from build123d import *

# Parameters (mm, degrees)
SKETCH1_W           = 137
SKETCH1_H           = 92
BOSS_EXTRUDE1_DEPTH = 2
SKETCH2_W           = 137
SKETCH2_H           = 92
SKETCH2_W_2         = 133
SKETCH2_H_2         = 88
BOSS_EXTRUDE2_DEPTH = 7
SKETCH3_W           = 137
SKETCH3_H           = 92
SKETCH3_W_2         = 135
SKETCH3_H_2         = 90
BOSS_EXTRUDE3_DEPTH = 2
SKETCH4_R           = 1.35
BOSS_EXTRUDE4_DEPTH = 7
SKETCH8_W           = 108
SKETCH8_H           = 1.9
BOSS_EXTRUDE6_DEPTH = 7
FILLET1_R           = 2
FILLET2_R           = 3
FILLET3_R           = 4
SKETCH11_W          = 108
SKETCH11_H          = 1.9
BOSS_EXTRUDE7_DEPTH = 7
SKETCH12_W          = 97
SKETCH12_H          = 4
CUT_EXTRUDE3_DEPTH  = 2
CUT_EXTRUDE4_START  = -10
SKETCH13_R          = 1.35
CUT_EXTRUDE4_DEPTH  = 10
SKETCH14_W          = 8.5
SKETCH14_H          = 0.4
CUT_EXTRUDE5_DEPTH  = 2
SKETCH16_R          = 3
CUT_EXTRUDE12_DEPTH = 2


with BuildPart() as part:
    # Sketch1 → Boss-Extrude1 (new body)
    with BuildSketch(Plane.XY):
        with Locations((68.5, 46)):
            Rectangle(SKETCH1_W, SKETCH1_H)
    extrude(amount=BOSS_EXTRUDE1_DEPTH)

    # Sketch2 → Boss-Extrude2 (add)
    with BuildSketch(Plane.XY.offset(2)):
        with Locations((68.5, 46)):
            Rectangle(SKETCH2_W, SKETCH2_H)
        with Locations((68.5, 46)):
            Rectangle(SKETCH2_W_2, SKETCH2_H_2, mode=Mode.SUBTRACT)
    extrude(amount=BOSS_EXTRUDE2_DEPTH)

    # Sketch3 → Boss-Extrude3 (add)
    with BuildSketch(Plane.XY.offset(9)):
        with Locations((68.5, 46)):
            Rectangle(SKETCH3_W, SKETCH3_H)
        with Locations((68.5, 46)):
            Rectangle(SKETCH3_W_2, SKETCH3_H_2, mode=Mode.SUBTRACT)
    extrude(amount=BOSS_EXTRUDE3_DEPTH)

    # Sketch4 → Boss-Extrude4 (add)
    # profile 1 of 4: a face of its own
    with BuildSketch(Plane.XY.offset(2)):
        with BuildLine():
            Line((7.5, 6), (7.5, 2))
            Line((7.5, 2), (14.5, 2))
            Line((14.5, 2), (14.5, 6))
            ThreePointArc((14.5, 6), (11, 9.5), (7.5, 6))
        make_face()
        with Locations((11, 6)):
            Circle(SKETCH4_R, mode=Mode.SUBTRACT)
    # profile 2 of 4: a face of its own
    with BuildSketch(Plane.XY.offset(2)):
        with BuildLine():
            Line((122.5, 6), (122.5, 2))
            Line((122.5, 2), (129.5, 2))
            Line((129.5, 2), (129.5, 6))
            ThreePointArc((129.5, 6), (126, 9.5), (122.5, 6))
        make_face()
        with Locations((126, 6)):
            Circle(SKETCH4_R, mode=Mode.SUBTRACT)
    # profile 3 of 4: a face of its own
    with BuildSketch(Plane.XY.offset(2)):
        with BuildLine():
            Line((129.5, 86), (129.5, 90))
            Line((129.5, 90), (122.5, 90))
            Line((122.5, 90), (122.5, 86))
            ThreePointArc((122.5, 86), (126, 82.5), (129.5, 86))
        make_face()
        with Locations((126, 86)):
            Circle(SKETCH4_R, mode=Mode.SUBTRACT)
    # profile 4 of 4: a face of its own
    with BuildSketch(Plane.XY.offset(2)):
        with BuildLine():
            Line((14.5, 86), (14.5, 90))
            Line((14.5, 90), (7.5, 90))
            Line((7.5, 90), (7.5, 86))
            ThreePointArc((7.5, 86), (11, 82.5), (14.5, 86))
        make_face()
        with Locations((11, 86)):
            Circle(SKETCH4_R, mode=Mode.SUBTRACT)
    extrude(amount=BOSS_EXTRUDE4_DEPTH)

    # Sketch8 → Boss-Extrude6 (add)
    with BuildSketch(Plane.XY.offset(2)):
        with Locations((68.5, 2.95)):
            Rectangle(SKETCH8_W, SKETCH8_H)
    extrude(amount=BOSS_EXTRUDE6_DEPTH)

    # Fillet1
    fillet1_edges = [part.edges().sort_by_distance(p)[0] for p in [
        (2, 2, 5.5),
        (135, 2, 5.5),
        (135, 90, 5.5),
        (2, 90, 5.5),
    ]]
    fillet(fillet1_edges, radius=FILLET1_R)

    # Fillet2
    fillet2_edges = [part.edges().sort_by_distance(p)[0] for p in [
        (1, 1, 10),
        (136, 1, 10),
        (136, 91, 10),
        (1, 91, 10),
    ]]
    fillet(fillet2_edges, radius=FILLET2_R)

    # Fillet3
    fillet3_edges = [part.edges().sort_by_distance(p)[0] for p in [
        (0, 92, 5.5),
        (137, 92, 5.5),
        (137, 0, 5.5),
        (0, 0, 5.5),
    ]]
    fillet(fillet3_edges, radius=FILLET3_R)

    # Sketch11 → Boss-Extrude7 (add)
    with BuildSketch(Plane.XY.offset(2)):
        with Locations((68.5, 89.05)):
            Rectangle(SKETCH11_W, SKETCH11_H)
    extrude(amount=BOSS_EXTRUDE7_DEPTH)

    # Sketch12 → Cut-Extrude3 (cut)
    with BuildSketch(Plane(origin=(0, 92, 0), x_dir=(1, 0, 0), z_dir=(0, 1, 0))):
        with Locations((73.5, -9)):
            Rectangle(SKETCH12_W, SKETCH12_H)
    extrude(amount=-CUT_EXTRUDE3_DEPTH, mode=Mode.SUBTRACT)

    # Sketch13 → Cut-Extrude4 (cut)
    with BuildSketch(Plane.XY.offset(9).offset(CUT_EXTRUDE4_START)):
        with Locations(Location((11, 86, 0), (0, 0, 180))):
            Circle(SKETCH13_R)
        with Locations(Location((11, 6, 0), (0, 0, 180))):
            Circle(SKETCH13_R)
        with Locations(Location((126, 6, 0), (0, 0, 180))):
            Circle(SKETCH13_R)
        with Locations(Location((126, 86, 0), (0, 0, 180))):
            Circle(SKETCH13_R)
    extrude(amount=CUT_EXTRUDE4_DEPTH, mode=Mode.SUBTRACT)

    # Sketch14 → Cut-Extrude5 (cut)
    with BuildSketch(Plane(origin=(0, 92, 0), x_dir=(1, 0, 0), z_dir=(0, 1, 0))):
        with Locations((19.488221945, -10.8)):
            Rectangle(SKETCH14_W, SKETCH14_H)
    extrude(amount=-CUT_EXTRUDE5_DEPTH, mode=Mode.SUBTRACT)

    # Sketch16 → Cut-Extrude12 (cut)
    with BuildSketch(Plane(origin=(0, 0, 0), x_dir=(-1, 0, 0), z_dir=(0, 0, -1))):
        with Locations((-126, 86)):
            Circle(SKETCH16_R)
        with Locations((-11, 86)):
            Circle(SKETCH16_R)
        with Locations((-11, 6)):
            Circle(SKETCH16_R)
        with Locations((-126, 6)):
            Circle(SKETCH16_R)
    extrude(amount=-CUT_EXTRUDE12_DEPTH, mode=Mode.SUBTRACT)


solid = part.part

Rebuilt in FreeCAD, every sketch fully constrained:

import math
import FreeCAD as App
import Part
import Sketcher

V = App.Vector
Q = App.Units.Quantity


def edges_at(feature, points):
    """Names of the edges that pass closest to the given points."""
    edges = feature.Shape.Edges
    near = lambda p: min(range(len(edges)), key=lambda i: edges[i].distToShape(Part.Vertex(*p))[0])
    return sorted({f"Edge{near(p) + 1}" for p in points})

doc = App.newDocument("Part")
body = doc.addObject("PartDesign::Body", "Body")

# Sketch on XY plane
sketch1 = body.newObject("Sketcher::SketchObject", "Sketch")
sketch1.AttachmentSupport = (doc.getObject("XY_Plane"), [""])
sketch1.MapMode = "FlatFace"
sketch1.addGeometry([
    Part.LineSegment(V(0, 92, 0), V(0, 0, 0)),
    Part.LineSegment(V(0, 0, 0), V(137, 0, 0)),
    Part.LineSegment(V(137, 0, 0), V(137, 92, 0)),
    Part.LineSegment(V(137, 92, 0), V(0, 92, 0)),
], False)
sketch1.addConstraint([
    Sketcher.Constraint("Coincident", 0, 2, 1, 1),
    Sketcher.Constraint("Coincident", 1, 2, 2, 1),
    Sketcher.Constraint("Coincident", 2, 2, 3, 1),
    Sketcher.Constraint("Coincident", 3, 2, 0, 1),
    Sketcher.Constraint("Vertical", 0),
    Sketcher.Constraint("Horizontal", 1),
    Sketcher.Constraint("Vertical", 2),
    Sketcher.Constraint("Horizontal", 3),
    Sketcher.Constraint("Coincident", 0, 2, -1, 1),
    Sketcher.Constraint("DistanceX", 1, 1, 1, 2, Q("137 mm")),
    Sketcher.Constraint("DistanceY", 0, 2, 0, 1, Q("92 mm")),
])
pad1 = body.newObject("PartDesign::Pad", "Pad")
pad1.Profile = sketch1
pad1.Length = 2

# Sketch on XY plane
sketch2 = body.newObject("Sketcher::SketchObject", "Sketch001")
sketch2.AttachmentSupport = (doc.getObject("XY_Plane"), [""])
sketch2.MapMode = "FlatFace"
sketch2.AttachmentOffset = App.Placement(V(0, 0, 2), App.Rotation())
sketch2.addGeometry([
    Part.LineSegment(V(0, 92, 0), V(0, 0, 0)),  # 0
    Part.LineSegment(V(0, 0, 0), V(137, 0, 0)),  # 1
    Part.LineSegment(V(137, 0, 0), V(137, 92, 0)),  # 2
    Part.LineSegment(V(137, 92, 0), V(0, 92, 0)),  # 3
    Part.LineSegment(V(135, 2, 0), V(2, 2, 0)),  # 4
    Part.LineSegment(V(2, 2, 0), V(2, 90, 0)),  # 5
    Part.LineSegment(V(2, 90, 0), V(135, 90, 0)),  # 6
    Part.LineSegment(V(135, 90, 0), V(135, 2, 0)),  # 7
], False)
sketch2.addConstraint([
    Sketcher.Constraint("Coincident", 0, 2, 1, 1),
    Sketcher.Constraint("Coincident", 1, 2, 2, 1),
    Sketcher.Constraint("Coincident", 2, 2, 3, 1),
    Sketcher.Constraint("Coincident", 3, 2, 0, 1),
    Sketcher.Constraint("Coincident", 4, 2, 5, 1),
    Sketcher.Constraint("Coincident", 5, 2, 6, 1),
    Sketcher.Constraint("Coincident", 6, 2, 7, 1),
    Sketcher.Constraint("Coincident", 7, 2, 4, 1),
    Sketcher.Constraint("Vertical", 0),
    Sketcher.Constraint("Horizontal", 1),
    Sketcher.Constraint("Vertical", 2),
    Sketcher.Constraint("Horizontal", 3),
    Sketcher.Constraint("Horizontal", 4),
    Sketcher.Constraint("Vertical", 5),
    Sketcher.Constraint("Horizontal", 6),
    Sketcher.Constraint("Vertical", 7),
    Sketcher.Constraint("Coincident", 0, 2, -1, 1),
    Sketcher.Constraint("DistanceX", 1, 1, 1, 2, Q("137 mm")),
    Sketcher.Constraint("DistanceX", 4, 2, 4, 1, Q("133 mm")),
    Sketcher.Constraint("DistanceY", 0, 2, 0, 1, Q("92 mm")),
    Sketcher.Constraint("DistanceY", 5, 1, 5, 2, Q("88 mm")),
    Sketcher.Constraint("DistanceX", -1, 1, 4, 2, Q("2 mm")),
    Sketcher.Constraint("DistanceY", -1, 1, 4, 2, Q("2 mm")),
])
pad2 = body.newObject("PartDesign::Pad", "Pad001")
pad2.Profile = sketch2
pad2.Length = 7

# Sketch on XY plane
sketch3 = body.newObject("Sketcher::SketchObject", "Sketch002")
sketch3.AttachmentSupport = (doc.getObject("XY_Plane"), [""])
sketch3.MapMode = "FlatFace"
sketch3.AttachmentOffset = App.Placement(V(0, 0, 9), App.Rotation())
sketch3.addGeometry([
    Part.LineSegment(V(0, 92, 0), V(0, 0, 0)),  # 0
    Part.LineSegment(V(0, 0, 0), V(137, 0, 0)),  # 1
    Part.LineSegment(V(137, 0, 0), V(137, 92, 0)),  # 2
    Part.LineSegment(V(137, 92, 0), V(0, 92, 0)),  # 3
    Part.LineSegment(V(136, 1, 0), V(1, 1, 0)),  # 4
    Part.LineSegment(V(1, 1, 0), V(1, 91, 0)),  # 5
    Part.LineSegment(V(1, 91, 0), V(136, 91, 0)),  # 6
    Part.LineSegment(V(136, 91, 0), V(136, 1, 0)),  # 7
], False)
sketch3.addConstraint([
    Sketcher.Constraint("Coincident", 0, 2, 1, 1),
    Sketcher.Constraint("Coincident", 1, 2, 2, 1),
    Sketcher.Constraint("Coincident", 2, 2, 3, 1),
    Sketcher.Constraint("Coincident", 3, 2, 0, 1),
    Sketcher.Constraint("Coincident", 4, 2, 5, 1),
    Sketcher.Constraint("Coincident", 5, 2, 6, 1),
    Sketcher.Constraint("Coincident", 6, 2, 7, 1),
    Sketcher.Constraint("Coincident", 7, 2, 4, 1),
    Sketcher.Constraint("Vertical", 0),
    Sketcher.Constraint("Horizontal", 1),
    Sketcher.Constraint("Vertical", 2),
    Sketcher.Constraint("Horizontal", 3),
    Sketcher.Constraint("Horizontal", 4),
    Sketcher.Constraint("Vertical", 5),
    Sketcher.Constraint("Horizontal", 6),
    Sketcher.Constraint("Vertical", 7),
    Sketcher.Constraint("Coincident", 0, 2, -1, 1),
    Sketcher.Constraint("DistanceX", 1, 1, 1, 2, Q("137 mm")),
    Sketcher.Constraint("DistanceX", 4, 2, 4, 1, Q("135 mm")),
    Sketcher.Constraint("DistanceY", 0, 2, 0, 1, Q("92 mm")),
    Sketcher.Constraint("DistanceY", 5, 1, 5, 2, Q("90 mm")),
    Sketcher.Constraint("DistanceX", -1, 1, 4, 2, Q("1 mm")),
    Sketcher.Constraint("DistanceY", -1, 1, 4, 2, Q("1 mm")),
])
pad3 = body.newObject("PartDesign::Pad", "Pad002")
pad3.Profile = sketch3
pad3.Length = 2

# Sketch on XY plane
sketch4 = body.newObject("Sketcher::SketchObject", "Sketch003")
sketch4.AttachmentSupport = (doc.getObject("XY_Plane"), [""])
sketch4.MapMode = "FlatFace"
sketch4.AttachmentOffset = App.Placement(V(0, 0, 2), App.Rotation())
sketch4.addGeometry([
    Part.LineSegment(V(7.5, 6, 0), V(7.5, 2, 0)),  # 0
    Part.LineSegment(V(7.5, 2, 0), V(14.5, 2, 0)),  # 1
    Part.LineSegment(V(14.5, 2, 0), V(14.5, 6, 0)),  # 2
    Part.ArcOfCircle(Part.Circle(V(11, 6, 0), V(0, 0, 1), 3.5), math.radians(0), math.radians(180)),  # 3
    Part.Circle(V(11, 6, 0), V(0, 0, 1), 1.4),  # 4
    Part.LineSegment(V(122.5, 6, 0), V(122.5, 2, 0)),  # 5
    Part.LineSegment(V(122.5, 2, 0), V(129.5, 2, 0)),  # 6
    Part.LineSegment(V(129.5, 2, 0), V(129.5, 6, 0)),  # 7
    Part.ArcOfCircle(Part.Circle(V(126, 6, 0), V(0, 0, 1), 3.5), math.radians(0), math.radians(180)),  # 8
    Part.Circle(V(126, 6, 0), V(0, 0, 1), 1.4),  # 9
    Part.LineSegment(V(129.5, 86, 0), V(129.5, 90, 0)),  # 10
    Part.LineSegment(V(129.5, 90, 0), V(122.5, 90, 0)),  # 11
    Part.LineSegment(V(122.5, 90, 0), V(122.5, 86, 0)),  # 12
    Part.ArcOfCircle(Part.Circle(V(126, 86, 0), V(0, 0, 1), 3.5), math.radians(180), math.radians(360)),  # 13
    Part.Circle(V(126, 86, 0), V(0, 0, 1), 1.4),  # 14
    Part.LineSegment(V(14.5, 86, 0), V(14.5, 90, 0)),  # 15
    Part.LineSegment(V(14.5, 90, 0), V(7.5, 90, 0)),  # 16
    Part.LineSegment(V(7.5, 90, 0), V(7.5, 86, 0)),  # 17
    Part.ArcOfCircle(Part.Circle(V(11, 86, 0), V(0, 0, 1), 3.5), math.radians(180), math.radians(360)),  # 18
    Part.Circle(V(11, 86, 0), V(0, 0, 1), 1.4),  # 19
], False)
sketch4.addConstraint([
    Sketcher.Constraint("Coincident", 0, 2, 1, 1),
    Sketcher.Constraint("Coincident", 1, 2, 2, 1),
    Sketcher.Constraint("Tangent", 2, 2, 3, 1),
    Sketcher.Constraint("Tangent", 3, 2, 0, 1),
    Sketcher.Constraint("Coincident", 5, 2, 6, 1),
    Sketcher.Constraint("Coincident", 6, 2, 7, 1),
    Sketcher.Constraint("Tangent", 7, 2, 8, 1),
    Sketcher.Constraint("Tangent", 8, 2, 5, 1),
    Sketcher.Constraint("Coincident", 10, 2, 11, 1),
    Sketcher.Constraint("Coincident", 11, 2, 12, 1),
    Sketcher.Constraint("Tangent", 12, 2, 13, 1),
    Sketcher.Constraint("Tangent", 13, 2, 10, 1),
    Sketcher.Constraint("Coincident", 15, 2, 16, 1),
    Sketcher.Constraint("Coincident", 16, 2, 17, 1),
    Sketcher.Constraint("Tangent", 17, 2, 18, 1),
    Sketcher.Constraint("Tangent", 18, 2, 15, 1),
    Sketcher.Constraint("Vertical", 0),
    Sketcher.Constraint("Horizontal", 1),
    Sketcher.Constraint("Vertical", 2),
    Sketcher.Constraint("Vertical", 5),
    Sketcher.Constraint("Horizontal", 6),
    Sketcher.Constraint("Vertical", 7),
    Sketcher.Constraint("Vertical", 10),
    Sketcher.Constraint("Horizontal", 11),
    Sketcher.Constraint("Vertical", 12),
    Sketcher.Constraint("Vertical", 15),
    Sketcher.Constraint("Horizontal", 16),
    Sketcher.Constraint("Vertical", 17),
    Sketcher.Constraint("Coincident", 4, 3, 3, 3),
    Sketcher.Constraint("Coincident", 9, 3, 8, 3),
    Sketcher.Constraint("Coincident", 14, 3, 13, 3),
    Sketcher.Constraint("Coincident", 19, 3, 18, 3),
    Sketcher.Constraint("Equal", 3, 8),
    Sketcher.Constraint("Equal", 4, 9),
    Sketcher.Constraint("Equal", 8, 13),
    Sketcher.Constraint("Equal", 9, 14),
    Sketcher.Constraint("Equal", 13, 18),
    Sketcher.Constraint("Equal", 14, 19),
    Sketcher.Constraint("Horizontal", 4, 3, 8, 3),
    Sketcher.Constraint("Horizontal", 14, 3, 18, 3),
    Sketcher.Constraint("Horizontal", 1, 2, 5, 2),
    Sketcher.Constraint("Horizontal", 11, 2, 15, 2),
    Sketcher.Constraint("Vertical", 9, 3, 13, 3),
    Sketcher.Constraint("Vertical", 4, 3, 18, 3),
    Sketcher.Constraint("Equal", 7, 10),
    Sketcher.Constraint("Diameter", 4, Q("2.7 mm")),
    Sketcher.Constraint("Radius", 3, Q("3.5 mm")),
    Sketcher.Constraint("DistanceY", 0, 2, 0, 1, Q("4 mm")),
    Sketcher.Constraint("DistanceX", -1, 1, 3, 3, Q("11 mm")),
    Sketcher.Constraint("DistanceY", -1, 1, 3, 3, Q("6 mm")),
    Sketcher.Constraint("DistanceX", -1, 1, 8, 3, Q("126 mm")),
    Sketcher.Constraint("DistanceY", -1, 1, 13, 3, Q("86 mm")),
])
pad4 = body.newObject("PartDesign::Pad", "Pad003")
pad4.Profile = sketch4
pad4.Length = 7

# Sketch on XY plane
sketch5 = body.newObject("Sketcher::SketchObject", "Sketch004")
sketch5.AttachmentSupport = (doc.getObject("XY_Plane"), [""])
sketch5.MapMode = "FlatFace"
sketch5.AttachmentOffset = App.Placement(V(0, 0, 2), App.Rotation())
sketch5.addGeometry([
    Part.LineSegment(V(14.5, 3.9, 0), V(14.5, 2, 0)),
    Part.LineSegment(V(14.5, 2, 0), V(122.5, 2, 0)),
    Part.LineSegment(V(122.5, 2, 0), V(122.5, 3.9, 0)),
    Part.LineSegment(V(122.5, 3.9, 0), V(14.5, 3.9, 0)),
], False)
sketch5.addConstraint([
    Sketcher.Constraint("Coincident", 0, 2, 1, 1),
    Sketcher.Constraint("Coincident", 1, 2, 2, 1),
    Sketcher.Constraint("Coincident", 2, 2, 3, 1),
    Sketcher.Constraint("Coincident", 3, 2, 0, 1),
    Sketcher.Constraint("Vertical", 0),
    Sketcher.Constraint("Horizontal", 1),
    Sketcher.Constraint("Vertical", 2),
    Sketcher.Constraint("Horizontal", 3),
    Sketcher.Constraint("DistanceX", 1, 1, 1, 2, Q("108 mm")),
    Sketcher.Constraint("DistanceY", 0, 2, 0, 1, Q("1.9 mm")),
    Sketcher.Constraint("DistanceY", -1, 1, 0, 2, Q("2 mm")),
    Sketcher.Constraint("DistanceX", -1, 1, 0, 2, Q("14.5 mm")),
])
pad5 = body.newObject("PartDesign::Pad", "Pad004")
pad5.Profile = sketch5
pad5.Length = 7
doc.recompute()

fillet = body.newObject("PartDesign::Fillet", "Fillet")
fillet.Base = (pad5, edges_at(pad5, [
    (2, 2, 5.5),
    (135, 2, 5.5),
    (135, 90, 5.5),
    (2, 90, 5.5),
]))
fillet.Radius = 2
doc.recompute()

fillet2 = body.newObject("PartDesign::Fillet", "Fillet001")
fillet2.Base = (fillet, edges_at(fillet, [
    (1, 1, 10),
    (136, 1, 10),
    (136, 91, 10),
    (1, 91, 10),
]))
fillet2.Radius = 3
doc.recompute()

fillet3 = body.newObject("PartDesign::Fillet", "Fillet002")
fillet3.Base = (fillet2, edges_at(fillet2, [
    (0, 92, 5.5),
    (137, 92, 5.5),
    (137, 0, 5.5),
    (0, 0, 5.5),
]))
fillet3.Radius = 4

# Sketch on XY plane
sketch6 = body.newObject("Sketcher::SketchObject", "Sketch005")
sketch6.AttachmentSupport = (doc.getObject("XY_Plane"), [""])
sketch6.MapMode = "FlatFace"
sketch6.AttachmentOffset = App.Placement(V(0, 0, 2), App.Rotation())
sketch6.addGeometry([
    Part.LineSegment(V(14.5, 90, 0), V(14.5, 88.1, 0)),
    Part.LineSegment(V(14.5, 88.1, 0), V(122.5, 88.1, 0)),
    Part.LineSegment(V(122.5, 88.1, 0), V(122.5, 90, 0)),
    Part.LineSegment(V(122.5, 90, 0), V(14.5, 90, 0)),
], False)
sketch6.addConstraint([
    Sketcher.Constraint("Coincident", 0, 2, 1, 1),
    Sketcher.Constraint("Coincident", 1, 2, 2, 1),
    Sketcher.Constraint("Coincident", 2, 2, 3, 1),
    Sketcher.Constraint("Coincident", 3, 2, 0, 1),
    Sketcher.Constraint("Vertical", 0),
    Sketcher.Constraint("Horizontal", 1),
    Sketcher.Constraint("Vertical", 2),
    Sketcher.Constraint("Horizontal", 3),
    Sketcher.Constraint("DistanceX", 1, 1, 1, 2, Q("108 mm")),
    Sketcher.Constraint("DistanceY", 0, 2, 0, 1, Q("1.9 mm")),
    Sketcher.Constraint("DistanceY", -1, 1, 2, 2, Q("90 mm")),
    Sketcher.Constraint("DistanceX", -1, 1, 0, 2, Q("14.5 mm")),
])
pad6 = body.newObject("PartDesign::Pad", "Pad005")
pad6.Profile = sketch6
pad6.Length = 7

# Sketch on XZ plane
sketch7 = body.newObject("Sketcher::SketchObject", "Sketch006")
sketch7.AttachmentSupport = (doc.getObject("XZ_Plane"), [""])
sketch7.MapMode = "FlatFace"
sketch7.AttachmentOffset = App.Placement(V(0, 0, -92), App.Rotation())
sketch7.addGeometry([
    Part.LineSegment(V(25, 7, 0), V(25, 11, 0)),
    Part.LineSegment(V(25, 11, 0), V(122, 11, 0)),
    Part.LineSegment(V(122, 11, 0), V(122, 7, 0)),
    Part.LineSegment(V(122, 7, 0), V(25, 7, 0)),
], False)
sketch7.addConstraint([
    Sketcher.Constraint("Coincident", 0, 2, 1, 1),
    Sketcher.Constraint("Coincident", 1, 2, 2, 1),
    Sketcher.Constraint("Coincident", 2, 2, 3, 1),
    Sketcher.Constraint("Coincident", 3, 2, 0, 1),
    Sketcher.Constraint("Vertical", 0),
    Sketcher.Constraint("Horizontal", 1),
    Sketcher.Constraint("Vertical", 2),
    Sketcher.Constraint("Horizontal", 3),
    Sketcher.Constraint("DistanceX", 1, 1, 1, 2, Q("97 mm")),
    Sketcher.Constraint("DistanceY", 0, 1, 0, 2, Q("4 mm")),
    Sketcher.Constraint("DistanceX", -1, 1, 0, 2, Q("25 mm")),
    Sketcher.Constraint("DistanceY", -1, 1, 0, 2, Q("11 mm")),
])
pocket1 = body.newObject("PartDesign::Pocket", "Pocket")
pocket1.Profile = sketch7
pocket1.Length = 2
pocket1.Reversed = True

# Sketch on XY plane
sketch8 = body.newObject("Sketcher::SketchObject", "Sketch007")
sketch8.AttachmentSupport = (doc.getObject("XY_Plane"), [""])
sketch8.MapMode = "FlatFace"
sketch8.AttachmentOffset = App.Placement(V(0, 0, -1), App.Rotation())
sketch8.addGeometry([
    Part.Circle(V(11, 86, 0), V(0, 0, 1), 1.4),
    Part.Circle(V(11, 6, 0), V(0, 0, 1), 1.4),
    Part.Circle(V(126, 6, 0), V(0, 0, 1), 1.4),
    Part.Circle(V(126, 86, 0), V(0, 0, 1), 1.4),
], False)
sketch8.addConstraint([
    Sketcher.Constraint("Equal", 0, 1),
    Sketcher.Constraint("Equal", 1, 2),
    Sketcher.Constraint("Equal", 2, 3),
    Sketcher.Constraint("Horizontal", 1, 3, 2, 3),
    Sketcher.Constraint("Horizontal", 0, 3, 3, 3),
    Sketcher.Constraint("Vertical", 0, 3, 1, 3),
    Sketcher.Constraint("Vertical", 2, 3, 3, 3),
    Sketcher.Constraint("Diameter", 0, Q("2.7 mm")),
    Sketcher.Constraint("DistanceX", -1, 1, 0, 3, Q("11 mm")),
    Sketcher.Constraint("DistanceY", -1, 1, 0, 3, Q("86 mm")),
    Sketcher.Constraint("DistanceY", -1, 1, 1, 3, Q("6 mm")),
    Sketcher.Constraint("DistanceX", -1, 1, 2, 3, Q("126 mm")),
])
pocket2 = body.newObject("PartDesign::Pocket", "Pocket001")
pocket2.Profile = sketch8
pocket2.Length = 10
pocket2.Reversed = True

# Sketch on XZ plane
sketch9 = body.newObject("Sketcher::SketchObject", "Sketch008")
sketch9.AttachmentSupport = (doc.getObject("XZ_Plane"), [""])
sketch9.MapMode = "FlatFace"
sketch9.AttachmentOffset = App.Placement(V(0, 0, -92), App.Rotation())
sketch9.addGeometry([
    Part.LineSegment(V(15.24, 10.6, 0), V(15.24, 11, 0)),
    Part.LineSegment(V(15.24, 11, 0), V(23.74, 11, 0)),
    Part.LineSegment(V(23.74, 11, 0), V(23.74, 10.6, 0)),
    Part.LineSegment(V(23.74, 10.6, 0), V(15.24, 10.6, 0)),
], False)
sketch9.addConstraint([
    Sketcher.Constraint("Coincident", 0, 2, 1, 1),
    Sketcher.Constraint("Coincident", 1, 2, 2, 1),
    Sketcher.Constraint("Coincident", 2, 2, 3, 1),
    Sketcher.Constraint("Coincident", 3, 2, 0, 1),
    Sketcher.Constraint("Vertical", 0),
    Sketcher.Constraint("Horizontal", 1),
    Sketcher.Constraint("Vertical", 2),
    Sketcher.Constraint("Horizontal", 3),
    Sketcher.Constraint("DistanceX", 1, 1, 1, 2, Q("8.5 mm")),
    Sketcher.Constraint("DistanceY", 0, 1, 0, 2, Q("0.4 mm")),
    Sketcher.Constraint("DistanceY", -1, 1, 0, 2, Q("11 mm")),
    Sketcher.Constraint("DistanceX", -1, 1, 0, 2, Q("15.238222 mm")),
])
pocket3 = body.newObject("PartDesign::Pocket", "Pocket002")
pocket3.Profile = sketch9
pocket3.Length = 2
pocket3.Reversed = True

# Sketch on XY plane
sketch10 = body.newObject("Sketcher::SketchObject", "Sketch009")
sketch10.AttachmentSupport = (doc.getObject("XY_Plane"), [""])
sketch10.MapMode = "FlatFace"
sketch10.addGeometry([
    Part.Circle(V(126, 86, 0), V(0, 0, 1), 3),
    Part.Circle(V(11, 86, 0), V(0, 0, 1), 3),
    Part.Circle(V(11, 6, 0), V(0, 0, 1), 3),
    Part.Circle(V(126, 6, 0), V(0, 0, 1), 3),
], False)
sketch10.addConstraint([
    Sketcher.Constraint("Equal", 0, 1),
    Sketcher.Constraint("Equal", 1, 2),
    Sketcher.Constraint("Equal", 2, 3),
    Sketcher.Constraint("Horizontal", 0, 3, 1, 3),
    Sketcher.Constraint("Horizontal", 2, 3, 3, 3),
    Sketcher.Constraint("Vertical", 1, 3, 2, 3),
    Sketcher.Constraint("Vertical", 0, 3, 3, 3),
    Sketcher.Constraint("Diameter", 0, Q("6 mm")),
    Sketcher.Constraint("DistanceX", -1, 1, 0, 3, Q("126 mm")),
    Sketcher.Constraint("DistanceY", -1, 1, 0, 3, Q("86 mm")),
    Sketcher.Constraint("DistanceX", -1, 1, 1, 3, Q("11 mm")),
    Sketcher.Constraint("DistanceY", -1, 1, 2, 3, Q("6 mm")),
])
pocket4 = body.newObject("PartDesign::Pocket", "Pocket003")
pocket4.Profile = sketch10
pocket4.Length = 2
pocket4.Reversed = True

doc.recompute()
